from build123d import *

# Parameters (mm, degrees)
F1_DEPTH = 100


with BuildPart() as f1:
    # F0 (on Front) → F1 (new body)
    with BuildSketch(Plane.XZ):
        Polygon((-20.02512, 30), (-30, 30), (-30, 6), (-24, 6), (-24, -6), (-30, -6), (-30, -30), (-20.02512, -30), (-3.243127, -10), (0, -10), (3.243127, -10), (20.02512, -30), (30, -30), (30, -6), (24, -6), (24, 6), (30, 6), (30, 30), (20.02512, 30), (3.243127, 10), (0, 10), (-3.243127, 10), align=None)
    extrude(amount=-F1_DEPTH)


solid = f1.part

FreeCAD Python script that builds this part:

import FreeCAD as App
import Part
import Sketcher

V = App.Vector
Q = App.Units.Quantity

doc = App.newDocument("Part")
body = doc.addObject("PartDesign::Body", "Body")

sketch1 = body.newObject("Sketcher::SketchObject", "Sketch")
sketch1.AttachmentSupport = (doc.getObject("XZ_Plane"), [""])
sketch1.MapMode = "FlatFace"
sketch1.addGeometry(Part.LineSegment(V(-20.02512, 30, 0), V(-30, 30, 0)), False)
sketch1.addGeometry(Part.LineSegment(V(-30, 30, 0), V(-30, 6, 0)), False)
sketch1.addGeometry(Part.LineSegment(V(-30, 6, 0), V(-24, 6, 0)), False)
sketch1.addGeometry(Part.LineSegment(V(-24, 6, 0), V(-24, -6, 0)), False)
sketch1.addGeometry(Part.LineSegment(V(-24, -6, 0), V(-30, -6, 0)), False)
sketch1.addGeometry(Part.LineSegment(V(-30, -6, 0), V(-30, -30, 0)), False)
sketch1.addGeometry(Part.LineSegment(V(-30, -30, 0), V(-20.02512, -30, 0)), False)
sketch1.addGeometry(Part.LineSegment(V(-20.02512, -30, 0), V(-3.243127, -10, 0)), False)
sketch1.addGeometry(Part.LineSegment(V(-3.243127, -10, 0), V(3.243127, -10, 0)), False)
sketch1.addGeometry(Part.LineSegment(V(3.243127, -10, 0), V(20.02512, -30, 0)), False)
sketch1.addGeometry(Part.LineSegment(V(20.02512, -30, 0), V(30, -30, 0)), False)
sketch1.addGeometry(Part.LineSegment(V(30, -30, 0), V(30, -6, 0)), False)
sketch1.addGeometry(Part.LineSegment(V(30, -6, 0), V(24, -6, 0)), False)
sketch1.addGeometry(Part.LineSegment(V(24, -6, 0), V(24, 6, 0)), False)
sketch1.addGeometry(Part.LineSegment(V(24, 6, 0), V(30, 6, 0)), False)
sketch1.addGeometry(Part.LineSegment(V(30, 6, 0), V(30, 30, 0)), False)
sketch1.addGeometry(Part.LineSegment(V(30, 30, 0), V(20.02512, 30, 0)), False)
sketch1.addGeometry(Part.LineSegment(V(20.02512, 30, 0), V(3.243127, 10, 0)), False)
sketch1.addGeometry(Part.LineSegment(V(3.243127, 10, 0), V(-3.243127, 10, 0)), False)
sketch1.addGeometry(Part.LineSegment(V(-3.243127, 10, 0), V(-20.02512, 30, 0)), False)
sketch1.addConstraint(Sketcher.Constraint("Coincident", 0, 2, 1, 1))
sketch1.addConstraint(Sketcher.Constraint("Coincident", 1, 2, 2, 1))
sketch1.addConstraint(Sketcher.Constraint("Coincident", 2, 2, 3, 1))
sketch1.addConstraint(Sketcher.Constraint("Coincident", 3, 2, 4, 1))
sketch1.addConstraint(Sketcher.Constraint("Coincident", 4, 2, 5, 1))
sketch1.addConstraint(Sketcher.Constraint("Coincident", 5, 2, 6, 1))
sketch1.addConstraint(Sketcher.Constraint("Coincident", 6, 2, 7, 1))
sketch1.addConstraint(Sketcher.Constraint("Coincident", 7, 2, 8, 1))
sketch1.addConstraint(Sketcher.Constraint("Coincident", 8, 2, 9, 1))
sketch1.addConstraint(Sketcher.Constraint("Coincident", 9, 2, 10, 1))
sketch1.addConstraint(Sketcher.Constraint("Coincident", 10, 2, 11, 1))
sketch1.addConstraint(Sketcher.Constraint("Coincident", 11, 2, 12, 1))
sketch1.addConstraint(Sketcher.Constraint("Coincident", 12, 2, 13, 1))
sketch1.addConstraint(Sketcher.Constraint("Coincident", 13, 2, 14, 1))
sketch1.addConstraint(Sketcher.Constraint("Coincident", 14, 2, 15, 1))
sketch1.addConstraint(Sketcher.Constraint("Coincident", 15, 2, 16, 1))
sketch1.addConstraint(Sketcher.Constraint("Coincident", 16, 2, 17, 1))
sketch1.addConstraint(Sketcher.Constraint("Coincident", 17, 2, 18, 1))
sketch1.addConstraint(Sketcher.Constraint("Coincident", 18, 2, 19, 1))
sketch1.addConstraint(Sketcher.Constraint("Coincident", 19, 2, 0, 1))
sketch1.addConstraint(Sketcher.Constraint("Horizontal", 0))
sketch1.addConstraint(Sketcher.Constraint("Vertical", 1))
sketch1.addConstraint(Sketcher.Constraint("Horizontal", 2))
sketch1.addConstraint(Sketcher.Constraint("Vertical", 3))
sketch1.addConstraint(Sketcher.Constraint("Horizontal", 4))
sketch1.addConstraint(Sketcher.Constraint("Vertical", 5))
sketch1.addConstraint(Sketcher.Constraint("Horizontal", 6))
sketch1.addConstraint(Sketcher.Constraint("Horizontal", 8))
sketch1.addConstraint(Sketcher.Constraint("Horizontal", 10))
sketch1.addConstraint(Sketcher.Constraint("Vertical", 11))
sketch1.addConstraint(Sketcher.Constraint("Horizontal", 12))
sketch1.addConstraint(Sketcher.Constraint("Vertical", 13))
sketch1.addConstraint(Sketcher.Constraint("Horizontal", 14))
sketch1.addConstraint(Sketcher.Constraint("Vertical", 15))
sketch1.addConstraint(Sketcher.Constraint("Horizontal", 16))
sketch1.addConstraint(Sketcher.Constraint("Horizontal", 18))
sketch1.addConstraint(Sketcher.Constraint("Symmetric", 0, 2, 10, 2, -1, 1))
sketch1.addConstraint(Sketcher.Constraint("Symmetric", 2, 2, 12, 2, -1, 1))
sketch1.addConstraint(Sketcher.Constraint("Symmetric", 4, 2, 14, 2, -1, 1))
sketch1.addConstraint(Sketcher.Constraint("Symmetric", 6, 2, 16, 2, -1, 1))
sketch1.addConstraint(Sketcher.Constraint("Symmetric", 7, 2, 17, 2, -1, 1))
sketch1.addConstraint(Sketcher.Constraint("Symmetric", 6, 2, 9, 2, -2))
sketch1.addConstraint(Sketcher.Constraint("Symmetric", 4, 2, 11, 2, -2))
sketch1.addConstraint(Sketcher.Constraint("Parallel", 9, 19))
sketch1.addConstraint(Sketcher.Constraint("Vertical", 8, 2, 17, 2))
sketch1.addConstraint(Sketcher.Constraint("Vertical", 7, 2, 18, 2))
sketch1.addConstraint(Sketcher.Constraint("DistanceX", 2, 1, 2, 2, Q("6 mm")))
sketch1.addConstraint(Sketcher.Constraint("DistanceY", 1, 2, 1, 1, Q("24 mm")))
sketch1.addConstraint(Sketcher.Constraint("DistanceY", 3, 2, 3, 1, Q("12 mm")))
sketch1.addConstraint(Sketcher.Constraint("Angle", 7, Q("49.999999 deg")))
sketch1.addConstraint(Sketcher.Constraint("DistanceX", 0, 2, -1, 1, Q("30 mm")))
sketch1.addConstraint(Sketcher.Constraint("DistanceY", 7, 2, -1, 1, Q("10 mm")))
sketch1.addConstraint(Sketcher.Constraint("DistanceX", 0, 2, 0, 1, Q("9.97488 mm")))
pad1 = body.newObject("PartDesign::Pad", "Pad")
pad1.Profile = sketch1
pad1.Length = 100
pad1.Reversed = True

doc.recompute()
